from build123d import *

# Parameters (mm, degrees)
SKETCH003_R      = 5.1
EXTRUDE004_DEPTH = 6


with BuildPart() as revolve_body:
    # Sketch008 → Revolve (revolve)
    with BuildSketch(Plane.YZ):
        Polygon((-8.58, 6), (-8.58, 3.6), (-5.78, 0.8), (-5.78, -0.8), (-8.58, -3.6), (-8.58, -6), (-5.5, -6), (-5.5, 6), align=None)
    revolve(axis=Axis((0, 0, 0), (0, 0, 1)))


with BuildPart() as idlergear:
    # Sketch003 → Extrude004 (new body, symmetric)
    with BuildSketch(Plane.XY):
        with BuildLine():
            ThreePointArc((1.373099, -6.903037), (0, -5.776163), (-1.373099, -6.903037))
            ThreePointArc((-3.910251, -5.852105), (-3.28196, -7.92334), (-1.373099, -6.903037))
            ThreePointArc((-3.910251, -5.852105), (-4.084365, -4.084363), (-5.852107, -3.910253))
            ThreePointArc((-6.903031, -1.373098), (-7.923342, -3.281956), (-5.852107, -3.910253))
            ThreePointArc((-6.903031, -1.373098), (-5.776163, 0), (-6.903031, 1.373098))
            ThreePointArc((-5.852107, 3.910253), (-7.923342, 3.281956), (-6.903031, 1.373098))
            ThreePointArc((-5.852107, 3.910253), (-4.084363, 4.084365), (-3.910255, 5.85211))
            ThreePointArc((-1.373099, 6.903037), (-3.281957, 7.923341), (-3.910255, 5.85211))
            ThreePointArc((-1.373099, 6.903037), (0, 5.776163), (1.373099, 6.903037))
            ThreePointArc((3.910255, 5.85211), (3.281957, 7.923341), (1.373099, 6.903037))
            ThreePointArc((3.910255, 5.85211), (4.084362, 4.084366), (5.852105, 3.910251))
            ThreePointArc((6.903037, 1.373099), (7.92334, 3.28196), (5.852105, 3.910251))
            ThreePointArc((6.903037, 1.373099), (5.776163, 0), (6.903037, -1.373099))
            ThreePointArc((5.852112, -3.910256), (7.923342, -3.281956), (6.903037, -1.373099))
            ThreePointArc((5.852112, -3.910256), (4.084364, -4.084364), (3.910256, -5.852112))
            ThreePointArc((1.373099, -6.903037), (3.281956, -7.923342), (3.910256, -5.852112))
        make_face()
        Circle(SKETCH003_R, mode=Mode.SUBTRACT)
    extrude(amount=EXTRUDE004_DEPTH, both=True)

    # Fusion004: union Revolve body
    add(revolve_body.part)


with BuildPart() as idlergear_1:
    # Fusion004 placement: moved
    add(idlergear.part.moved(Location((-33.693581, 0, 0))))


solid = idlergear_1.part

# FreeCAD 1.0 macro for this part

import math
import FreeCAD as App
import Part
import Sketcher

V = App.Vector
Q = App.Units.Quantity


def add_polygon(sketch, points):
    """Adds a closed chain of lines whose ends are joined by coincident constraints."""
    first, n = sketch.GeometryCount, len(points)
    for a, b in zip(points, points[1:] + points[:1]):
        sketch.addGeometry(Part.LineSegment(App.Vector(*a, 0), App.Vector(*b, 0)), False)
    for i in range(n):
        sketch.addConstraint(Sketcher.Constraint("Coincident", first + i, 2, first + (i + 1) % n, 1))

doc = App.newDocument("Part")
params = doc.addObject("Spreadsheet::Sheet", "Params")
for row, (alias, value) in enumerate([
    ("sketch1_height", "12 mm"),
    ("sketch1_height2", "2.4 mm"),
    ("sketch1_height3", "1.6 mm"),
    ("sketch1_width", "3.08 mm"),
    ("revolution_angle", "360 deg"),
    ("sketch2_diameter", "10.2 mm"),
    ("sketch2_radius", "1.399999 mm"),
    ("pad1_length", "12 mm"),
], start=1):
    params.set(f"A{row}", alias)
    params.set(f"B{row}", "=" + value)
    params.setAlias(f"B{row}", alias)

body = doc.addObject("PartDesign::Body", "Body")

sketch1 = body.newObject("Sketcher::SketchObject", "Sketch")
sketch1.AttachmentSupport = (doc.getObject("YZ_Plane"), [""])
sketch1.MapMode = "FlatFace"
add_polygon(sketch1, [(-8.58, 6), (-8.58, 3.6), (-5.78, 0.8), (-5.78, -0.8), (-8.58, -3.6), (-8.58, -6), (-5.5, -6), (-5.5, 6)])
sketch1.addConstraint([
    Sketcher.Constraint("Vertical", 0),
    Sketcher.Constraint("Vertical", 2),
    Sketcher.Constraint("Vertical", 4),
    Sketcher.Constraint("Horizontal", 5),
    Sketcher.Constraint("Vertical", 6),
    Sketcher.Constraint("Horizontal", 7),
    Sketcher.Constraint("Symmetric", 0, 2, 3, 2, -1),
    Sketcher.Constraint("Perpendicular", 1, 3),
    Sketcher.Constraint("Equal", 0, 4),
    Sketcher.Constraint("Equal", 1, 3),
    Sketcher.Constraint("DistanceY", 6, 1, 6, 2, Q("12 mm")),
    Sketcher.Constraint("DistanceY", 0, 2, 0, 1, Q("2.4 mm")),
    Sketcher.Constraint("DistanceY", 2, 2, 2, 1, Q("1.6 mm")),
    Sketcher.Constraint("DistanceX", 5, 1, 5, 2, Q("3.08 mm")),
    Sketcher.Constraint("DistanceX", 5, 2, -1, 1, Q("5.5 mm")),
])
sketch1.setExpression("Constraints[18]", "Params.sketch1_height")
sketch1.setExpression("Constraints[19]", "Params.sketch1_height2")
sketch1.setExpression("Constraints[20]", "Params.sketch1_height3")
sketch1.setExpression("Constraints[21]", "Params.sketch1_width")
revolution = body.newObject("PartDesign::Revolution", "Revolution")
revolution.Profile = sketch1
revolution.ReferenceAxis = (sketch1, ["V_Axis"])
revolution.setExpression("Angle", "Params.revolution_angle")
body2 = doc.addObject("PartDesign::Body", "Body001")

sketch2 = body2.newObject("Sketcher::SketchObject", "Sketch001")
sketch2.AttachmentSupport = (doc.getObject("XY_Plane001"), [""])
sketch2.MapMode = "FlatFace"
sketch2.addGeometry([
    Part.ArcOfCircle(Part.Circle(V(0, -7.176162, 0), V(0, 0, 1), 1.399999), math.radians(11.249961), math.radians(168.750039)),
    Part.ArcOfCircle(Part.Circle(V(2.746199, -6.629911, 0), V(0, 0, 1), 1.4), math.radians(-168.750008), math.radians(33.750015)),
    Part.ArcOfCircle(Part.Circle(V(5.074314, -5.074314, 0), V(0, 0, 1), 1.4), math.radians(56.250001), math.radians(213.749999)),
    Part.ArcOfCircle(Part.Circle(V(6.629911, -2.746199, 0), V(0, 0, 1), 1.4), math.radians(-123.750015), math.radians(78.750008)),
    Part.ArcOfCircle(Part.Circle(V(7.176162, 0, 0), V(0, 0, 1), 1.399999), math.radians(101.249961), math.radians(258.750039)),
    Part.ArcOfCircle(Part.Circle(V(6.629911, 2.746198, 0), V(0, 0, 1), 1.4), math.radians(-78.750003), math.radians(123.750359)),
    Part.ArcOfCircle(Part.Circle(V(5.074314, 5.074313, 0), V(0, 0, 1), 1.4), math.radians(146.250089), math.radians(303.749645)),
    Part.ArcOfCircle(Part.Circle(V(2.746199, 6.62991, 0), V(0, 0, 1), 1.4), math.radians(-33.750084), math.radians(168.749984)),
    Part.ArcOfCircle(Part.Circle(V(0, 7.176162, 0), V(0, 0, 1), 1.399999), math.radians(-168.750039), math.radians(-11.249961)),
    Part.ArcOfCircle(Part.Circle(V(-2.746199, 6.62991, 0), V(0, 0, 1), 1.4), math.radians(11.250016), math.radians(213.750084)),
    Part.ArcOfCircle(Part.Circle(V(-5.074313, 5.074313, 0), V(0, 0, 1), 1.4), math.radians(-123.749775), math.radians(33.749922)),
    Part.ArcOfCircle(Part.Circle(V(-6.629911, 2.746199, 0), V(0, 0, 1), 1.4), math.radians(56.249747), math.radians(258.750254)),
    Part.ArcOfCircle(Part.Circle(V(-7.176163, 0, 0), V(0, 0, 1), 1.4), math.radians(-78.74978), math.radians(78.74978)),
    Part.ArcOfCircle(Part.Circle(V(-6.629911, -2.746199, 0), V(0, 0, 1), 1.4), math.radians(101.249746), math.radians(303.750253)),
    Part.ArcOfCircle(Part.Circle(V(-5.074313, -5.074314, 0), V(0, 0, 1), 1.4), math.radians(-33.749645), math.radians(123.749763)),
    Part.ArcOfCircle(Part.Circle(V(-2.746198, -6.629911, 0), V(0, 0, 1), 1.4), math.radians(146.249641), math.radians(348.750003)),
    Part.Circle(V(0, 0, 0), V(0, 0, 1), 5.1),
], False)
sketch2.addConstraint([
    Sketcher.Constraint("Tangent", 0, 1, 1, 1),
    Sketcher.Constraint("Tangent", 1, 2, 2, 2),
    Sketcher.Constraint("Tangent", 2, 1, 3, 1),
    Sketcher.Constraint("Tangent", 3, 2, 4, 2),
    Sketcher.Constraint("Tangent", 4, 1, 5, 1),
    Sketcher.Constraint("Coincident", 5, 2, 6, 2),
    Sketcher.Constraint("Coincident", 6, 1, 7, 1),
    Sketcher.Constraint("Tangent", 7, 2, 8, 2),
    Sketcher.Constraint("Tangent", 8, 1, 9, 1),
    Sketcher.Constraint("Coincident", 9, 2, 10, 2),
    Sketcher.Constraint("Coincident", 10, 1, 11, 1),
    Sketcher.Constraint("Coincident", 11, 2, 12, 2),
    Sketcher.Constraint("Coincident", 12, 1, 13, 1),
    Sketcher.Constraint("Coincident", 13, 2, 14, 2),
    Sketcher.Constraint("Coincident", 14, 1, 15, 1),
    Sketcher.Constraint("Tangent", 15, 2, 0, 2),
    Sketcher.Constraint("Coincident", 16, 3, -1, 1),
    Sketcher.Constraint("Equal", 0, 1),
    Sketcher.Constraint("Equal", 1, 2),
    Sketcher.Constraint("Equal", 2, 3),
    Sketcher.Constraint("Equal", 3, 4),
    Sketcher.Constraint("Equal", 4, 5),
    Sketcher.Constraint("Equal", 5, 6),
    Sketcher.Constraint("Equal", 6, 7),
    Sketcher.Constraint("Equal", 7, 8),
    Sketcher.Constraint("Equal", 8, 9),
    Sketcher.Constraint("Equal", 9, 10),
    Sketcher.Constraint("Equal", 10, 11),
    Sketcher.Constraint("Equal", 11, 12),
    Sketcher.Constraint("Equal", 12, 13),
    Sketcher.Constraint("Equal", 13, 14),
    Sketcher.Constraint("Equal", 14, 15),
    Sketcher.Constraint("Symmetric", 0, 3, 8, 3, -1, 1),
    Sketcher.Constraint("Symmetric", 2, 3, 10, 3, -1, 1),
    Sketcher.Constraint("Symmetric", 4, 3, 12, 3, -1, 1),
    Sketcher.Constraint("Symmetric", 6, 3, 14, 3, -1, 1),
    Sketcher.Constraint("Symmetric", 7, 3, 9, 3, -2),
    Sketcher.Constraint("Symmetric", 5, 3, 11, 3, -2),
    Sketcher.Constraint("Horizontal", 6, 1, 9, 2),
    Sketcher.Constraint("Horizontal", 4, 1, 11, 2),
    Sketcher.Constraint("Horizontal", 3, 2, 12, 1),
    Sketcher.Constraint("Vertical", 1, 2, 6, 1),
    Sketcher.Constraint("Vertical", 10, 1, 13, 2),
    Sketcher.Constraint("Diameter", 16, Q("10.2 mm")),
    Sketcher.Constraint("Radius", 0, Q("1.399999 mm")),
    Sketcher.Constraint("DistanceX", -1, 1, 1, 3, Q("2.746199 mm")),
    Sketcher.Constraint("DistanceY", 3, 3, -1, 1, Q("2.746199 mm")),
    Sketcher.Constraint("DistanceY", 1, 2, 2, 3, Q("0.777798 mm")),
    Sketcher.Constraint("DistanceX", 2, 3, 2, 1, Q("0.777798 mm")),
    Sketcher.Constraint("DistanceY", -1, 1, 5, 2, Q("3.910251 mm")),
    Sketcher.Constraint("DistanceX", 14, 1, -1, 1, Q("3.910251 mm")),
    Sketcher.Constraint("DistanceY", 10, 1, 10, 3, Q("1.16406 mm")),
])
sketch2.setExpression("Constraints[43]", "Params.sketch2_diameter")
sketch2.setExpression("Constraints[44]", "Params.sketch2_radius")
pad1 = body2.newObject("PartDesign::Pad", "Pad")
pad1.Profile = sketch2
pad1.setExpression("Length", "Params.pad1_length")
pad1.Midplane = True
doc.recompute()

boolean = body2.newObject("PartDesign::Boolean", "Boolean")
boolean.Type = "Fuse"
boolean.addObjects([body])
body3 = doc.addObject("PartDesign::Body", "Body002")
doc.recompute()

body2.Placement = App.Placement(V(-33.693581, 0, 0), App.Rotation(V(0, 0, 1), 0))
boolean2 = body3.newObject("PartDesign::Boolean", "Boolean001")
boolean2.Type = "Fuse"
boolean2.addObjects([body2])

doc.recompute()
